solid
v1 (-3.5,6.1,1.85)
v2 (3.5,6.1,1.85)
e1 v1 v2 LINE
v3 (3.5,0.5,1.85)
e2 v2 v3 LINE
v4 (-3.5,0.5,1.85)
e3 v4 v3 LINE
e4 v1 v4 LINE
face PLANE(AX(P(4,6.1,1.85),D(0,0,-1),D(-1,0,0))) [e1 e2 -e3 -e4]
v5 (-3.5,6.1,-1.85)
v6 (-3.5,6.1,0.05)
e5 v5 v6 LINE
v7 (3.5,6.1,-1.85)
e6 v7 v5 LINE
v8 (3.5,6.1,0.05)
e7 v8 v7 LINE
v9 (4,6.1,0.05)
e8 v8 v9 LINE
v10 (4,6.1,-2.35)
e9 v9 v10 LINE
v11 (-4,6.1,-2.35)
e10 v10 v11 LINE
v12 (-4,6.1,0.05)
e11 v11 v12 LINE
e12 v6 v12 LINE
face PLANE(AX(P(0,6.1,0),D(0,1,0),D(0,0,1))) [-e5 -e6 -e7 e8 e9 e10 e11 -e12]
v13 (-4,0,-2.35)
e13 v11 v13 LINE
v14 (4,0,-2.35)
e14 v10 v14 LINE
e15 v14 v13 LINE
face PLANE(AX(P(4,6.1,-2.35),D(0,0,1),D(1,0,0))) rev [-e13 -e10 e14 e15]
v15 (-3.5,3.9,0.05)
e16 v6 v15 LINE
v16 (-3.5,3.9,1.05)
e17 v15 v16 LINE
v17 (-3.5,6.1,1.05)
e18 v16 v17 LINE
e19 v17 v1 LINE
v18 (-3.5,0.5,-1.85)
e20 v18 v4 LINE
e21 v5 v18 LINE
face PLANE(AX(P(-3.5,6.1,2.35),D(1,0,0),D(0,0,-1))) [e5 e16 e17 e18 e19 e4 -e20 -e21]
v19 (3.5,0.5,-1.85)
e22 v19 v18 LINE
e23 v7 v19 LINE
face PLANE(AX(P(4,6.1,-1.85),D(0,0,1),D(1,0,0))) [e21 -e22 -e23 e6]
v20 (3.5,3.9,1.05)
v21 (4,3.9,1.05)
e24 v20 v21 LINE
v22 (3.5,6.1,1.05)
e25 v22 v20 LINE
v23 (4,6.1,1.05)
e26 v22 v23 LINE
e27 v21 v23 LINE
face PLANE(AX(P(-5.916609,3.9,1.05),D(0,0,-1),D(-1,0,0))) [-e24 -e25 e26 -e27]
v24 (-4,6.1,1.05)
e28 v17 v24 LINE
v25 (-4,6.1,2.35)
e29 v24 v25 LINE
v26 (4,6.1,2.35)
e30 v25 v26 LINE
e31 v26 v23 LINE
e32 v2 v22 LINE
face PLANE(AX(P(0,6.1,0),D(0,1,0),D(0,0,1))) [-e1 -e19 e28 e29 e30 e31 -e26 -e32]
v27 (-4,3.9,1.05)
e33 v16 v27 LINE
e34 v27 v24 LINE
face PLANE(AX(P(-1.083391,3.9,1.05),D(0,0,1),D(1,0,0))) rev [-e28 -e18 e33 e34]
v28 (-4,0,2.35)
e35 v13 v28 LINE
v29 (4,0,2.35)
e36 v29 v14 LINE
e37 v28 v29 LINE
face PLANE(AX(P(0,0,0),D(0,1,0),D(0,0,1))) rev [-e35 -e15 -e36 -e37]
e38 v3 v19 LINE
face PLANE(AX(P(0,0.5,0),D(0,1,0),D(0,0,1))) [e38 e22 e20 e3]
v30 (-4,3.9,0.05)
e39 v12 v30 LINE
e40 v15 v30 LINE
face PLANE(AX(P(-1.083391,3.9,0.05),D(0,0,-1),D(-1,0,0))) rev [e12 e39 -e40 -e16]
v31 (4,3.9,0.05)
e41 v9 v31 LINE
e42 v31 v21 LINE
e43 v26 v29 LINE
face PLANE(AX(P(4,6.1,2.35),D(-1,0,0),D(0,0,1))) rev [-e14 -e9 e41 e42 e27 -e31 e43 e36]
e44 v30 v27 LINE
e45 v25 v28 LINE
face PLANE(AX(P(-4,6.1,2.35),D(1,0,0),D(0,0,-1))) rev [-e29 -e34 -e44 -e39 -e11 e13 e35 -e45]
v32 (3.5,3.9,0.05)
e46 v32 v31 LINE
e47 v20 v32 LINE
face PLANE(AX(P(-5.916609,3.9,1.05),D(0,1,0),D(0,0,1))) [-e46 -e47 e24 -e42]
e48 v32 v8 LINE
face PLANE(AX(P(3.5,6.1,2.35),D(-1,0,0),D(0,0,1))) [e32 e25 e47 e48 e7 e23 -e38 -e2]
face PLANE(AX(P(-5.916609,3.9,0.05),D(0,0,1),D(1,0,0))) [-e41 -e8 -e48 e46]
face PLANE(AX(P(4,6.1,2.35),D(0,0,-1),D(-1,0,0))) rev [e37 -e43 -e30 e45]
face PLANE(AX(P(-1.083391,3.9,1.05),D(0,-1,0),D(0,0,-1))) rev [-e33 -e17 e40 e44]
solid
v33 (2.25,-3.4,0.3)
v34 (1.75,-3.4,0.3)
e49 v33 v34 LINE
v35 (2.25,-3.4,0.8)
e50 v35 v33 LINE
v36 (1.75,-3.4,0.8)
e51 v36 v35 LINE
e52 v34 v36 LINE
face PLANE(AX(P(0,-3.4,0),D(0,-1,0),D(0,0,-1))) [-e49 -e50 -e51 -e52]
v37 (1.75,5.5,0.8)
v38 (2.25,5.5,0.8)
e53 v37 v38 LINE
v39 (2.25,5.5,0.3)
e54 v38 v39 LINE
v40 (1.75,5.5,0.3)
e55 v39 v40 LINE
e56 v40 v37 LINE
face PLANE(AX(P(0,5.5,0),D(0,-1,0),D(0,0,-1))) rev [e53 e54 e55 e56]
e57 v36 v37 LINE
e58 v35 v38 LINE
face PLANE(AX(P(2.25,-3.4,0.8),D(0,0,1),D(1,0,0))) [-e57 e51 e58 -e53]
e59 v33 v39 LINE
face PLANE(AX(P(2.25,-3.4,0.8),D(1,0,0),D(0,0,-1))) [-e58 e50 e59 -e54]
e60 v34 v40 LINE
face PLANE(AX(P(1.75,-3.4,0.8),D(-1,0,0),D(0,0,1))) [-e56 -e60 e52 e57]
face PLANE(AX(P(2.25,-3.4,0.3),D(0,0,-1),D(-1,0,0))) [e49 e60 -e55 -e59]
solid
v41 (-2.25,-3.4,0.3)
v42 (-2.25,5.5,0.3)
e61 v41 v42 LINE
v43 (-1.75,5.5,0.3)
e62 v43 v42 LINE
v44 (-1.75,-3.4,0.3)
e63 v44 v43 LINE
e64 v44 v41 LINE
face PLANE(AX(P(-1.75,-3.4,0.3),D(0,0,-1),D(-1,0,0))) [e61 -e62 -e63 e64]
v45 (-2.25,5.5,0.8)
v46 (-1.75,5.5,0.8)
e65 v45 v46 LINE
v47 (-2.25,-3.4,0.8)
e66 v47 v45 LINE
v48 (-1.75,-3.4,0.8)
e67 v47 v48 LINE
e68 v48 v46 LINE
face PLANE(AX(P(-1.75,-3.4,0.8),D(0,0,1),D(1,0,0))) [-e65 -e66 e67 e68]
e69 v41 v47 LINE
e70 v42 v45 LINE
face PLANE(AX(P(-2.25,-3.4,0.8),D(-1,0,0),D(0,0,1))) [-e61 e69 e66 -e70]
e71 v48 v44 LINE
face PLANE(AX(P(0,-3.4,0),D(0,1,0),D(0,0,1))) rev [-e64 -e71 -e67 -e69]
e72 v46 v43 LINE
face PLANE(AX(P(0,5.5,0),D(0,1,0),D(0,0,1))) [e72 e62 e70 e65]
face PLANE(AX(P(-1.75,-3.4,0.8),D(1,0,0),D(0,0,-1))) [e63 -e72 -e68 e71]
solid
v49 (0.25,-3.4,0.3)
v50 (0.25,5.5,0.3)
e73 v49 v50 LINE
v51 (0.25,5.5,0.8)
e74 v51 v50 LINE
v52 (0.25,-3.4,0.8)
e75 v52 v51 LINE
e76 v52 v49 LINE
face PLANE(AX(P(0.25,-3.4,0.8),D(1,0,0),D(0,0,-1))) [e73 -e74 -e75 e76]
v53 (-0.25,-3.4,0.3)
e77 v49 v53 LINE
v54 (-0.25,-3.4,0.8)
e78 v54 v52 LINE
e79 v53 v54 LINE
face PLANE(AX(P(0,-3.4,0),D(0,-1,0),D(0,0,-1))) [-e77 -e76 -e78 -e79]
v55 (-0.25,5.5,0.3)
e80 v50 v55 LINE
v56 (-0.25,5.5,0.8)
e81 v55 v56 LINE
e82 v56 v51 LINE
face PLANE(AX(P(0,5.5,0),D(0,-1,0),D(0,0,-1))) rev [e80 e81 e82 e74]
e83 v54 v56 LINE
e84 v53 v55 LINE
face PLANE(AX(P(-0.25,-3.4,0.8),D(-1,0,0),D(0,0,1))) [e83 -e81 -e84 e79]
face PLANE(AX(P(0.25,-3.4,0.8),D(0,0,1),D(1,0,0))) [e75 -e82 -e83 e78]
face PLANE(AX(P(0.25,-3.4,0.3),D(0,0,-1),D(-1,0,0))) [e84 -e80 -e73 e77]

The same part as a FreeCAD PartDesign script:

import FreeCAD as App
import Part
import Sketcher
Q = App.Units.Quantity


def faces_at(feature, points):
    """Names of the faces that lie closest to the given points."""
    faces = feature.Shape.Faces
    near = lambda p: min(range(len(faces)), key=lambda i: faces[i].distToShape(Part.Vertex(*p))[0])
    return sorted({f"Face{near(p) + 1}" for p in points})

doc = App.newDocument("Part")
body = doc.addObject("PartDesign::Body", "Body")

# Sketch on XZ plane
sketch1 = body.newObject("Sketcher::SketchObject", "Sketch")
sketch1.AttachmentSupport = (doc.getObject("XZ_Plane"), [""])
sketch1.MapMode = "FlatFace"
sketch1.addGeometry([
    Part.LineSegment(App.Vector(-4, -2.4, 0), App.Vector(-4, 2.4, 0)),
    Part.LineSegment(App.Vector(-4, 2.4, 0), App.Vector(4, 2.4, 0)),
    Part.LineSegment(App.Vector(4, 2.4, 0), App.Vector(4, -2.4, 0)),
    Part.LineSegment(App.Vector(4, -2.4, 0), App.Vector(-4, -2.4, 0)),
], False)
sketch1.addConstraint([
    Sketcher.Constraint("Coincident", 0, 2, 1, 1),
    Sketcher.Constraint("Coincident", 1, 2, 2, 1),
    Sketcher.Constraint("Coincident", 2, 2, 3, 1),
    Sketcher.Constraint("Coincident", 3, 2, 0, 1),
    Sketcher.Constraint("Vertical", 0),
    Sketcher.Constraint("Horizontal", 1),
    Sketcher.Constraint("Vertical", 2),
    Sketcher.Constraint("Horizontal", 3),
    Sketcher.Constraint("Symmetric", 0, 2, 2, 2, -1, 1),
    Sketcher.Constraint("DistanceX", 1, 1, 1, 2, Q("8 mm")),
    Sketcher.Constraint("DistanceY", 0, 1, 0, 2, Q("4.7 mm")),
])
pad1 = body.newObject("PartDesign::Pad", "Pad")
pad1.Profile = sketch1
pad1.Length = 6.1
pad1.Reversed = True
doc.recompute()

thickness = body.newObject("PartDesign::Thickness", "Thickness")
thickness.Base = (pad1, faces_at(pad1, [(0, 6.1, 0)]))
thickness.Value = 0.5
thickness.Reversed = True
thickness.Join = "Intersection"

# Sketch on YZ plane
sketch2 = body.newObject("Sketcher::SketchObject", "Sketch001")
sketch2.AttachmentSupport = (doc.getObject("YZ_Plane"), [""])
sketch2.MapMode = "FlatFace"
sketch2.AttachmentOffset = App.Placement(App.Vector(0, 0, -4), App.Rotation())
sketch2.addGeometry([
    Part.LineSegment(App.Vector(6.1, 0.1, 0), App.Vector(3.9, 0.1, 0)),
    Part.LineSegment(App.Vector(3.9, 0.1, 0), App.Vector(3.9, 1.1, 0)),
    Part.LineSegment(App.Vector(3.9, 1.1, 0), App.Vector(6.1, 1.1, 0)),
    Part.LineSegment(App.Vector(6.1, 1.1, 0), App.Vector(6.1, 0.1, 0)),
], False)
sketch2.addConstraint([
    Sketcher.Constraint("Coincident", 0, 2, 1, 1),
    Sketcher.Constraint("Coincident", 1, 2, 2, 1),
    Sketcher.Constraint("Coincident", 2, 2, 3, 1),
    Sketcher.Constraint("Coincident", 3, 2, 0, 1),
    Sketcher.Constraint("Horizontal", 0),
    Sketcher.Constraint("Vertical", 1),
    Sketcher.Constraint("Horizontal", 2),
    Sketcher.Constraint("Vertical", 3),
    Sketcher.Constraint("DistanceY", 1, 1, 1, 2, Q("1 mm")),
    Sketcher.Constraint("DistanceX", 0, 2, 0, 1, Q("2.2 mm")),
    Sketcher.Constraint("DistanceX", -1, 1, 0, 2, Q("3.9 mm")),
    Sketcher.Constraint("DistanceY", -1, 1, 0, 2, Q("0.05 mm")),
])
pocket1 = body.newObject("PartDesign::Pocket", "Pocket")
pocket1.Profile = sketch2
pocket1.Length = 7.5
pocket1.Reversed = True
doc.recompute()

mirrored = body.newObject("PartDesign::Mirrored", "Mirrored")
mirrored.Originals = [pocket1]
mirrored.MirrorPlane = (doc.getObject("YZ_Plane"), [""])
body.Tip = mirrored
body2 = doc.addObject("PartDesign::Body", "Body001")

# Sketch on XZ plane
sketch3 = body2.newObject("Sketcher::SketchObject", "Sketch002")
sketch3.AttachmentSupport = (doc.getObject("XZ_Plane001"), [""])
sketch3.MapMode = "FlatFace"
sketch3.AttachmentOffset = App.Placement(App.Vector(0, 0, -0.5), App.Rotation())
sketch3.addGeometry([
    Part.LineSegment(App.Vector(-0.2, 0.3, 0), App.Vector(-0.2, 0.8, 0)),
    Part.LineSegment(App.Vector(-0.2, 0.8, 0), App.Vector(0.2, 0.8, 0)),
    Part.LineSegment(App.Vector(0.2, 0.8, 0), App.Vector(0.2, 0.3, 0)),
    Part.LineSegment(App.Vector(0.2, 0.3, 0), App.Vector(-0.2, 0.3, 0)),
], False)
sketch3.addConstraint([
    Sketcher.Constraint("Coincident", 0, 2, 1, 1),
    Sketcher.Constraint("Coincident", 1, 2, 2, 1),
    Sketcher.Constraint("Coincident", 2, 2, 3, 1),
    Sketcher.Constraint("Coincident", 3, 2, 0, 1),
    Sketcher.Constraint("Vertical", 0),
    Sketcher.Constraint("Horizontal", 1),
    Sketcher.Constraint("Vertical", 2),
    Sketcher.Constraint("Horizontal", 3),
    Sketcher.Constraint("Equal", 3, 0),
    Sketcher.Constraint("DistanceX", 1, 1, 1, 2, Q("0.5 mm")),
    Sketcher.Constraint("DistanceY", -1, 1, 0, 2, Q("0.8 mm")),
    Sketcher.Constraint("DistanceX", 0, 2, -1, 1, Q("0.25 mm")),
])
pad2 = body2.newObject("PartDesign::Pad", "Pad001")
pad2.Profile = sketch3
pad2.Type = "TwoLengths"
pad2.Length = 5
pad2.Length2 = 3.9
pad2.Reversed = True
body3 = doc.addObject("PartDesign::Body", "Body002")

# Sketch on XZ plane
sketch4 = body3.newObject("Sketcher::SketchObject", "Sketch003")
sketch4.AttachmentSupport = (doc.getObject("XZ_Plane002"), [""])
sketch4.MapMode = "FlatFace"
sketch4.AttachmentOffset = App.Placement(App.Vector(0, 0, -0.5), App.Rotation())
sketch4.addGeometry([
    Part.LineSegment(App.Vector(-2.2, 0.3, 0), App.Vector(-2.2, 0.8, 0)),
    Part.LineSegment(App.Vector(-2.2, 0.8, 0), App.Vector(-1.8, 0.8, 0)),
    Part.LineSegment(App.Vector(-1.8, 0.8, 0), App.Vector(-1.8, 0.3, 0)),
    Part.LineSegment(App.Vector(-1.8, 0.3, 0), App.Vector(-2.2, 0.3, 0)),
], False)
sketch4.addConstraint([
    Sketcher.Constraint("Coincident", 0, 2, 1, 1),
    Sketcher.Constraint("Coincident", 1, 2, 2, 1),
    Sketcher.Constraint("Coincident", 2, 2, 3, 1),
    Sketcher.Constraint("Coincident", 3, 2, 0, 1),
    Sketcher.Constraint("Vertical", 0),
    Sketcher.Constraint("Horizontal", 1),
    Sketcher.Constraint("Vertical", 2),
    Sketcher.Constraint("Horizontal", 3),
    Sketcher.Constraint("Equal", 3, 0),
    Sketcher.Constraint("DistanceX", 1, 1, 1, 2, Q("0.5 mm")),
    Sketcher.Constraint("DistanceY", -1, 1, 0, 2, Q("0.8 mm")),
    Sketcher.Constraint("DistanceX", 0, 2, -1, 1, Q("2.25 mm")),
])
pad3 = body3.newObject("PartDesign::Pad", "Pad002")
pad3.Profile = sketch4
pad3.Type = "TwoLengths"
pad3.Length = 5
pad3.Length2 = 3.9
pad3.Reversed = True
body4 = doc.addObject("PartDesign::Body", "Body003")

# Sketch on XZ plane
sketch5 = body4.newObject("Sketcher::SketchObject", "Sketch004")
sketch5.AttachmentSupport = (doc.getObject("XZ_Plane003"), [""])
sketch5.MapMode = "FlatFace"
sketch5.AttachmentOffset = App.Placement(App.Vector(0, 0, -0.5), App.Rotation())
sketch5.addGeometry([
    Part.LineSegment(App.Vector(1.8, 0.3, 0), App.Vector(1.8, 0.8, 0)),
    Part.LineSegment(App.Vector(1.8, 0.8, 0), App.Vector(2.2, 0.8, 0)),
    Part.LineSegment(App.Vector(2.2, 0.8, 0), App.Vector(2.2, 0.3, 0)),
    Part.LineSegment(App.Vector(2.2, 0.3, 0), App.Vector(1.8, 0.3, 0)),
], False)
sketch5.addConstraint([
    Sketcher.Constraint("Coincident", 0, 2, 1, 1),
    Sketcher.Constraint("Coincident", 1, 2, 2, 1),
    Sketcher.Constraint("Coincident", 2, 2, 3, 1),
    Sketcher.Constraint("Coincident", 3, 2, 0, 1),
    Sketcher.Constraint("Vertical", 0),
    Sketcher.Constraint("Horizontal", 1),
    Sketcher.Constraint("Vertical", 2),
    Sketcher.Constraint("Horizontal", 3),
    Sketcher.Constraint("Equal", 3, 0),
    Sketcher.Constraint("DistanceX", 1, 1, 1, 2, Q("0.5 mm")),
    Sketcher.Constraint("DistanceY", -1, 1, 0, 2, Q("0.8 mm")),
    Sketcher.Constraint("DistanceX", -1, 1, 0, 2, Q("1.75 mm")),
])
pad4 = body4.newObject("PartDesign::Pad", "Pad003")
pad4.Profile = sketch5
pad4.Type = "TwoLengths"
pad4.Length = 5
pad4.Length2 = 3.9
pad4.Reversed = True

doc.recompute()
